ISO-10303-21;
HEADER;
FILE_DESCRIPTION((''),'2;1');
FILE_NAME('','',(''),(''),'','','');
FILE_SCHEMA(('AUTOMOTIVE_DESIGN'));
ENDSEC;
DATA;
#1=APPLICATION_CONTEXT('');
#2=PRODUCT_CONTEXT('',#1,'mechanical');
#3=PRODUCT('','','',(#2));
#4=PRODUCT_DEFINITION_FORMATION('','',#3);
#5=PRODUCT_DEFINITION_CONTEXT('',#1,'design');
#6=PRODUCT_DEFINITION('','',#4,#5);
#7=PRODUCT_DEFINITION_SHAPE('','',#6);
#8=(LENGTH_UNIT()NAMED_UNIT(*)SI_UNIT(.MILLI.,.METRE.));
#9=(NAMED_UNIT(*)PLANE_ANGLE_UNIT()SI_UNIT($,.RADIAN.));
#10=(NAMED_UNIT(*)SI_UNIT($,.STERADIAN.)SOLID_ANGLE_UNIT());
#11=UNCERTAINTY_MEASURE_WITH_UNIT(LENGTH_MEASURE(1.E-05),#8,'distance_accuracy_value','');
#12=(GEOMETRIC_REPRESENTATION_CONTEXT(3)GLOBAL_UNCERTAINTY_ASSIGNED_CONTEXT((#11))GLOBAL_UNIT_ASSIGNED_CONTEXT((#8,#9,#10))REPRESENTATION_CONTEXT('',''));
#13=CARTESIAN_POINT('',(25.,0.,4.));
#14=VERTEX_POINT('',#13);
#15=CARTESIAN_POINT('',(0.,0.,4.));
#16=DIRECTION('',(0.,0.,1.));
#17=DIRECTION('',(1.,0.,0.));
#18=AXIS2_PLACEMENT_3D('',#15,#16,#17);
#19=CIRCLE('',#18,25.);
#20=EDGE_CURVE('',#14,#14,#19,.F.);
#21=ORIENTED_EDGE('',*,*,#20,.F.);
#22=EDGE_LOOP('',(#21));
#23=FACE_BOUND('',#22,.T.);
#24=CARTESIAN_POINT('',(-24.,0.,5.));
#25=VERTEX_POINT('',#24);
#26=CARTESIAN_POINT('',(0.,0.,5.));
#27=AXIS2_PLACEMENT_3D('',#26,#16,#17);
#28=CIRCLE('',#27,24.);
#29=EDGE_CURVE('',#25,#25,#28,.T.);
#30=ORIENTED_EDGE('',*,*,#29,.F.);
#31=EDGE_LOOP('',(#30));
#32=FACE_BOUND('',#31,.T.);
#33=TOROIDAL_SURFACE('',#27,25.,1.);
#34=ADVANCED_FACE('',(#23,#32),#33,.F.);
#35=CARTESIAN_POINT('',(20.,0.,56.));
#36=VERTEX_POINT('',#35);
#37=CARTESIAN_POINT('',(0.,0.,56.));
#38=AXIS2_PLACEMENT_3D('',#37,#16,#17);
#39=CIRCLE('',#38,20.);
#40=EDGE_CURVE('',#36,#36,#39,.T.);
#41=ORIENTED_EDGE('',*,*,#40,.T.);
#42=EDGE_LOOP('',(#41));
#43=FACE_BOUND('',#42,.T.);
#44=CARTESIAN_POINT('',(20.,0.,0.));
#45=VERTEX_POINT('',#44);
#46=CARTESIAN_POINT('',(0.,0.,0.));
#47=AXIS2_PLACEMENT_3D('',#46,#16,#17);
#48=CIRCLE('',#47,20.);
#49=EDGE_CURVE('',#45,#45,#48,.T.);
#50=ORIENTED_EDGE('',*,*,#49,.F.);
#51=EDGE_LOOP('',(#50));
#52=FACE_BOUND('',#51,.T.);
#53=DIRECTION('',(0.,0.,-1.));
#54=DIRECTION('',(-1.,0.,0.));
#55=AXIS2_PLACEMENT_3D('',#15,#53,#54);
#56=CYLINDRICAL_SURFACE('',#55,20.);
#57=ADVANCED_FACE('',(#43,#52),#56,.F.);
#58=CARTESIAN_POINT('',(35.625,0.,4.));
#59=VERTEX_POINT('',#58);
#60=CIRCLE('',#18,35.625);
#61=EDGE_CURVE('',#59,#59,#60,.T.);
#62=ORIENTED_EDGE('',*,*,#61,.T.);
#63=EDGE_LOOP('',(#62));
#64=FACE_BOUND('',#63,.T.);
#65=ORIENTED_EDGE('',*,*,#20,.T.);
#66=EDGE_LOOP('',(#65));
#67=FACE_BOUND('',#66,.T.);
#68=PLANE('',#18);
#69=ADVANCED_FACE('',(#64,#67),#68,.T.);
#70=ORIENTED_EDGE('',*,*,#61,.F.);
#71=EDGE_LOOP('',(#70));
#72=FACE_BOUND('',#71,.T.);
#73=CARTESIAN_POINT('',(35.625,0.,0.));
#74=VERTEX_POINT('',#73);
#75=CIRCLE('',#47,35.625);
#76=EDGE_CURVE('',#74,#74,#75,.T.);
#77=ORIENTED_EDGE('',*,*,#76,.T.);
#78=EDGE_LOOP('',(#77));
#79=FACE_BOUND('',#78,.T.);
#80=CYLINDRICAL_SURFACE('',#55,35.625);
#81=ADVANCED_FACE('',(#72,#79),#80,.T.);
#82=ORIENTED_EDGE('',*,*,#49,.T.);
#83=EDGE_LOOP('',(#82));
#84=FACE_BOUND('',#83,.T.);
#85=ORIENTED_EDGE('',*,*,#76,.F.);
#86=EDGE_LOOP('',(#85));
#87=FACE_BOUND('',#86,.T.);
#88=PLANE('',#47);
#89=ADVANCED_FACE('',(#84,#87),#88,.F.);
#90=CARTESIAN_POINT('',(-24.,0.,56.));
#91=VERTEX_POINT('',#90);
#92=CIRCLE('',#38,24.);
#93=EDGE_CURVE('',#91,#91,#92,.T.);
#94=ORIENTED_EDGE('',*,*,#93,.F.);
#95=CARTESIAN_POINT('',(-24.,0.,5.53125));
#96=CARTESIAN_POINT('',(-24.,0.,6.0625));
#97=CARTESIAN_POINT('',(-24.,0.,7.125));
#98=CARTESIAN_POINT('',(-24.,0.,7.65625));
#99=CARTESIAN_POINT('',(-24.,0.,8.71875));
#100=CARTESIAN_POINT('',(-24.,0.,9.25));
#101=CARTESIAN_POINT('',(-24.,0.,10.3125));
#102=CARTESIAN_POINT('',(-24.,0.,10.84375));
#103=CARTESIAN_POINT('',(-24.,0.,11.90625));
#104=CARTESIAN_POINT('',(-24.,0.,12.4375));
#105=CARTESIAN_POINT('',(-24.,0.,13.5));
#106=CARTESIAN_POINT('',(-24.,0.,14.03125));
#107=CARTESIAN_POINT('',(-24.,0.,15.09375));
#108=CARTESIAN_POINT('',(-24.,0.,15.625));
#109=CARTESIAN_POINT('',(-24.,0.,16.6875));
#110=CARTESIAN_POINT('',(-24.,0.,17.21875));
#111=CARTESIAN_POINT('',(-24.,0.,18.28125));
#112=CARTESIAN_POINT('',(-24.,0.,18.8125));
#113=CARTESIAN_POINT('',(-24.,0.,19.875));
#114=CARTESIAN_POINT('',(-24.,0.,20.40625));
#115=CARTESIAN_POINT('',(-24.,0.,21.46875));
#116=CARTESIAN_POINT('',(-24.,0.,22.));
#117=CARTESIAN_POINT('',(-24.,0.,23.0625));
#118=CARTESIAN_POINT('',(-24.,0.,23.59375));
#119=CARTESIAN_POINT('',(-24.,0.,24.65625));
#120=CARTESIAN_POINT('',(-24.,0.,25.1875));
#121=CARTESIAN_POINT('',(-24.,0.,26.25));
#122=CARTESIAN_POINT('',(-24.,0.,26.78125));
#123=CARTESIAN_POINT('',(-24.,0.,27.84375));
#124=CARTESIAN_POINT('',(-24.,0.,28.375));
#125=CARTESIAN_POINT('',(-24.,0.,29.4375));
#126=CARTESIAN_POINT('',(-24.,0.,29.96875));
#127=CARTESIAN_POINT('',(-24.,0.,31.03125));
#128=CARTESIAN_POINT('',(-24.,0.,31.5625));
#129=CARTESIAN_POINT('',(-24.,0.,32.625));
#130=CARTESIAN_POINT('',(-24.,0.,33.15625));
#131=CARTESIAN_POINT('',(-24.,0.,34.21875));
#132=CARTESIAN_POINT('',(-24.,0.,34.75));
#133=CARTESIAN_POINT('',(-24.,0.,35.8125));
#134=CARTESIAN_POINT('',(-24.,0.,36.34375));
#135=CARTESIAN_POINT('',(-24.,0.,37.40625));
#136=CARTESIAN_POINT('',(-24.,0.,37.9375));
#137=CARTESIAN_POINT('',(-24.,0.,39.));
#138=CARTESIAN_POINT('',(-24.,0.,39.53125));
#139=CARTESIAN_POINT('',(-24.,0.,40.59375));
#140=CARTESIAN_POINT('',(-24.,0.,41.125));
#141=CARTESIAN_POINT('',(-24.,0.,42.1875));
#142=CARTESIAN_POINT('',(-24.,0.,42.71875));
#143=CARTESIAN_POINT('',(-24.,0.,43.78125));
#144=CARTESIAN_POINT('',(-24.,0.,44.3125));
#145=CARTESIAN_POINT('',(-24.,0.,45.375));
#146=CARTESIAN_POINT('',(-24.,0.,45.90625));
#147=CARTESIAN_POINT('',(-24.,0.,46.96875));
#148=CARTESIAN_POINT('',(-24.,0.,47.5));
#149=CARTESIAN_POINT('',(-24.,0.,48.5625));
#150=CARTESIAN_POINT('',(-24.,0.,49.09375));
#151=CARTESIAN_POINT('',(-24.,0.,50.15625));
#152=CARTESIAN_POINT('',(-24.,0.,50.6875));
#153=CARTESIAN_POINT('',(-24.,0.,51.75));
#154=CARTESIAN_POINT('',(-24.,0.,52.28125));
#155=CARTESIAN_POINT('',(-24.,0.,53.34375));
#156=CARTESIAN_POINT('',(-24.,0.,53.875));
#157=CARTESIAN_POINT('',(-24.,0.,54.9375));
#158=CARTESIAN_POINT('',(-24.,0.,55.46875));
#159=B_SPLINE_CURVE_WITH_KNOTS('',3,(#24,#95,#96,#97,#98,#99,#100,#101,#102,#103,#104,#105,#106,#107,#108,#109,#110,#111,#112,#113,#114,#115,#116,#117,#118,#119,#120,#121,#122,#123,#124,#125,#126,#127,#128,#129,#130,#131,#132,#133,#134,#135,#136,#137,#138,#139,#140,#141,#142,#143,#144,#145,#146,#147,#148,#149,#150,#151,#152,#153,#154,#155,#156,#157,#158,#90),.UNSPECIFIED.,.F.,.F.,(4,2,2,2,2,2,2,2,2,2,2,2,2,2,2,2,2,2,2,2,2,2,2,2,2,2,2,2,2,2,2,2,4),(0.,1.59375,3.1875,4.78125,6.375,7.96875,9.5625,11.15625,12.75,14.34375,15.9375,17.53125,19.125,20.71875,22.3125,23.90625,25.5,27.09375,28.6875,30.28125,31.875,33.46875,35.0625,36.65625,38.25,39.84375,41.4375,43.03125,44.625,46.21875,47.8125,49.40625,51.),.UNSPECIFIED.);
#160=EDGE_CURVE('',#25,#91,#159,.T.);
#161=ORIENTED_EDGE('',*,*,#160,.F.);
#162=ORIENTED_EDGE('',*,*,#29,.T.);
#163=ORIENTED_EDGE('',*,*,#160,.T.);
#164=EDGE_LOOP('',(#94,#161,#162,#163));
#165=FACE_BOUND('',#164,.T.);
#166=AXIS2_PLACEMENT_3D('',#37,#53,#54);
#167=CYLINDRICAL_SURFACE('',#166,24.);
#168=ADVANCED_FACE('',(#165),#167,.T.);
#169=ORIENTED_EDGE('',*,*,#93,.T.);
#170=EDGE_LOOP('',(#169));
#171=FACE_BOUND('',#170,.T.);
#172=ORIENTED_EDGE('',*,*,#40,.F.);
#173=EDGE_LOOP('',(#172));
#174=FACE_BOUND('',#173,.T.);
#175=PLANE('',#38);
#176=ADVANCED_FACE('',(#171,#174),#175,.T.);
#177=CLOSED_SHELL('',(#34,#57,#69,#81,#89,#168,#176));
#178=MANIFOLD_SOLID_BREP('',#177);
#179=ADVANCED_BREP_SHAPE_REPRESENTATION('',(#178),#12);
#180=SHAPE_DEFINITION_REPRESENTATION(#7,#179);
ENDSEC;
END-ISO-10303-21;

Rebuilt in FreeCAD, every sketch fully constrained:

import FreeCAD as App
import Part
import Sketcher


def edges_at(feature, points):
    """Names of the edges that pass closest to the given points."""
    edges = feature.Shape.Edges
    near = lambda p: min(range(len(edges)), key=lambda i: edges[i].distToShape(Part.Vertex(*p))[0])
    return sorted({f"Edge{near(p) + 1}" for p in points})

doc = App.newDocument("Part")
body = doc.addObject("PartDesign::Body", "Body")

sketch1 = body.newObject("Sketcher::SketchObject", "Sketch")
sketch1.AttachmentSupport = (doc.getObject("XY_Plane"), [""])
sketch1.MapMode = "FlatFace"
sketch1.addGeometry(Part.Circle(App.Vector(0, 0, 0), App.Vector(0, 0, 1), 36), False)
sketch1.addGeometry(Part.Circle(App.Vector(0, 0, 0), App.Vector(0, 0, 1), 20), False)
sketch1.addConstraint(Sketcher.Constraint("Coincident", 0, 3, -1, 1))
sketch1.addConstraint(Sketcher.Constraint("Coincident", 1, 3, -1, 1))
sketch1.addConstraint(Sketcher.Constraint("Diameter", 1, 40.0))
sketch1.addConstraint(Sketcher.Constraint("Diameter", 0, 71.25))
pad1 = body.newObject("PartDesign::Pad", "Pad")
pad1.Profile = sketch1
pad1.Length = 4

sketch2 = body.newObject("Sketcher::SketchObject", "Sketch001")
sketch2.AttachmentSupport = (doc.getObject("XY_Plane"), [""])
sketch2.MapMode = "FlatFace"
sketch2.AttachmentOffset = App.Placement(App.Vector(0, 0, 4), App.Rotation())
sketch2.addGeometry(Part.Circle(App.Vector(0, 0, 0), App.Vector(0, 0, 1), 24), False)
sketch2.addGeometry(Part.Circle(App.Vector(0, 0, 0), App.Vector(0, 0, 1), 20), False)
sketch2.addConstraint(Sketcher.Constraint("Coincident", 0, 3, -1, 1))
sketch2.addConstraint(Sketcher.Constraint("Coincident", 1, 3, -1, 1))
sketch2.addConstraint(Sketcher.Constraint("Diameter", 0, 48.0))
sketch2.addConstraint(Sketcher.Constraint("Diameter", 1, 40.0))
pad2 = body.newObject("PartDesign::Pad", "Pad001")
pad2.Profile = sketch2
pad2.Length = 52
doc.recompute()

fillet = body.newObject("PartDesign::Fillet", "Fillet")
fillet.Base = (pad2, edges_at(pad2, [(24, 0, 4)]))
fillet.Radius = 1

doc.recompute()
